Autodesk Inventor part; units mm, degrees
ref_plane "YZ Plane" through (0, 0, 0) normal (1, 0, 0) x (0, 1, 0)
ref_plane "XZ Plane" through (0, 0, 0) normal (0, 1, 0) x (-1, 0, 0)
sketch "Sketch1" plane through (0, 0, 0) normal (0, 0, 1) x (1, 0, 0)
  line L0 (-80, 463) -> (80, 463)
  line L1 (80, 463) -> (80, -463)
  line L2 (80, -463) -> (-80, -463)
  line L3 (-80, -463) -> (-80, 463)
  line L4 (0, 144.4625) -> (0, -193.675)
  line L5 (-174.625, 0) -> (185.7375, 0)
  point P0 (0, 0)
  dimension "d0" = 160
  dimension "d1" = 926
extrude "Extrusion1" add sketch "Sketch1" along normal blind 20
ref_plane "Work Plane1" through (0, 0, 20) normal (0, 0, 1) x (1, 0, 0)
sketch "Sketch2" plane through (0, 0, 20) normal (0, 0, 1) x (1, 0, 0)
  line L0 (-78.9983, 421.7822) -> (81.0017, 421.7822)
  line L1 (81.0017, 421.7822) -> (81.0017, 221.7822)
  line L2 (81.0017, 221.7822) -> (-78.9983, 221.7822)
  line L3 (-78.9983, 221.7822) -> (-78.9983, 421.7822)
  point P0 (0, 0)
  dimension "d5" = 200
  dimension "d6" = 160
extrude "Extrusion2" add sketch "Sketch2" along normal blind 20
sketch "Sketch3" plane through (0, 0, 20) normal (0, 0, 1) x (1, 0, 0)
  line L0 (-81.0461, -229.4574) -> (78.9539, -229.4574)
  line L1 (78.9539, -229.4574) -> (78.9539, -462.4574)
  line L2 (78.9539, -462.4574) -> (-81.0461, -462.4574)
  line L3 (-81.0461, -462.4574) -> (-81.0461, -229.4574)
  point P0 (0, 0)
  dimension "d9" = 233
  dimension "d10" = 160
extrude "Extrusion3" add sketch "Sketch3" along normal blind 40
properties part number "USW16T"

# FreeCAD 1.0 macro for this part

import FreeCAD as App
import Part
import Sketcher

V = App.Vector

doc = App.newDocument("Part")
body = doc.addObject("PartDesign::Body", "Body")

sketch1 = doc.addObject("Sketcher::SketchObject", "Sketch")
body.addObject(sketch1)
sketch1.AttachmentSupport = (doc.XY_Plane, [""])
sketch1.MapMode = "FlatFace"
sketch1.addGeometry([
    Part.LineSegment(V(80, 463, 0), V(-80, 463, 0)),
    Part.LineSegment(V(-80, 463, 0), V(-80, -463, 0)),
    Part.LineSegment(V(-80, -463, 0), V(80, -463, 0)),
    Part.LineSegment(V(80, -463, 0), V(80, 463, 0)),
], False)
sketch1.addConstraint([
    Sketcher.Constraint("Coincident", 0, 2, 1, 1),
    Sketcher.Constraint("Coincident", 1, 2, 2, 1),
    Sketcher.Constraint("Coincident", 2, 2, 3, 1),
    Sketcher.Constraint("Coincident", 3, 2, 0, 1),
    Sketcher.Constraint("Horizontal", 0),
    Sketcher.Constraint("Vertical", 1),
    Sketcher.Constraint("Horizontal", 2),
    Sketcher.Constraint("Vertical", 3),
    Sketcher.Constraint("Symmetric", 0, 2, 2, 2, -1, 1),
    Sketcher.Constraint("DistanceX", 0, 2, 0, 1, 160.0),
    Sketcher.Constraint("DistanceY", 1, 2, 1, 1, 926.0),
])
pad1 = doc.addObject("PartDesign::Pad", "Pad")
body.addObject(pad1)
pad1.Profile = sketch1
pad1.Length = 20

sketch2 = doc.addObject("Sketcher::SketchObject", "Sketch001")
body.addObject(sketch2)
sketch2.AttachmentSupport = (doc.XY_Plane, [""])
sketch2.MapMode = "FlatFace"
sketch2.AttachmentOffset = App.Placement(V(0, 0, 20), App.Rotation())
sketch2.addGeometry([
    Part.LineSegment(V(81, 422, 0), V(-79, 422, 0)),
    Part.LineSegment(V(-79, 422, 0), V(-79, 222, 0)),
    Part.LineSegment(V(-79, 222, 0), V(81, 222, 0)),
    Part.LineSegment(V(81, 222, 0), V(81, 422, 0)),
], False)
sketch2.addConstraint([
    Sketcher.Constraint("Coincident", 0, 2, 1, 1),
    Sketcher.Constraint("Coincident", 1, 2, 2, 1),
    Sketcher.Constraint("Coincident", 2, 2, 3, 1),
    Sketcher.Constraint("Coincident", 3, 2, 0, 1),
    Sketcher.Constraint("Horizontal", 0),
    Sketcher.Constraint("Vertical", 1),
    Sketcher.Constraint("Horizontal", 2),
    Sketcher.Constraint("Vertical", 3),
    Sketcher.Constraint("DistanceX", 0, 2, 0, 1, 160.0),
    Sketcher.Constraint("DistanceY", 1, 2, 1, 1, 200.0),
    Sketcher.Constraint("DistanceX", 0, 2, -1, 1, 78.9983),
    Sketcher.Constraint("DistanceY", -1, 1, 0, 2, 421.7822),
])
pad2 = doc.addObject("PartDesign::Pad", "Pad001")
body.addObject(pad2)
pad2.Profile = sketch2
pad2.Length = 20

sketch3 = doc.addObject("Sketcher::SketchObject", "Sketch002")
body.addObject(sketch3)
sketch3.AttachmentSupport = (doc.XY_Plane, [""])
sketch3.MapMode = "FlatFace"
sketch3.AttachmentOffset = App.Placement(V(0, 0, 20), App.Rotation())
sketch3.addGeometry([
    Part.LineSegment(V(79, -229, 0), V(-81, -229, 0)),
    Part.LineSegment(V(-81, -229, 0), V(-81, -462, 0)),
    Part.LineSegment(V(-81, -462, 0), V(79, -462, 0)),
    Part.LineSegment(V(79, -462, 0), V(79, -229, 0)),
], False)
sketch3.addConstraint([
    Sketcher.Constraint("Coincident", 0, 2, 1, 1),
    Sketcher.Constraint("Coincident", 1, 2, 2, 1),
    Sketcher.Constraint("Coincident", 2, 2, 3, 1),
    Sketcher.Constraint("Coincident", 3, 2, 0, 1),
    Sketcher.Constraint("Horizontal", 0),
    Sketcher.Constraint("Vertical", 1),
    Sketcher.Constraint("Horizontal", 2),
    Sketcher.Constraint("Vertical", 3),
    Sketcher.Constraint("DistanceX", 0, 2, 0, 1, 160.0),
    Sketcher.Constraint("DistanceY", 1, 2, 1, 1, 233.0),
    Sketcher.Constraint("DistanceX", 0, 2, -1, 1, 81.046),
    Sketcher.Constraint("DistanceY", 0, 2, -1, 1, 229.4574),
])
pad3 = doc.addObject("PartDesign::Pad", "Pad002")
body.addObject(pad3)
pad3.Profile = sketch3
pad3.Length = 40

doc.recompute()
